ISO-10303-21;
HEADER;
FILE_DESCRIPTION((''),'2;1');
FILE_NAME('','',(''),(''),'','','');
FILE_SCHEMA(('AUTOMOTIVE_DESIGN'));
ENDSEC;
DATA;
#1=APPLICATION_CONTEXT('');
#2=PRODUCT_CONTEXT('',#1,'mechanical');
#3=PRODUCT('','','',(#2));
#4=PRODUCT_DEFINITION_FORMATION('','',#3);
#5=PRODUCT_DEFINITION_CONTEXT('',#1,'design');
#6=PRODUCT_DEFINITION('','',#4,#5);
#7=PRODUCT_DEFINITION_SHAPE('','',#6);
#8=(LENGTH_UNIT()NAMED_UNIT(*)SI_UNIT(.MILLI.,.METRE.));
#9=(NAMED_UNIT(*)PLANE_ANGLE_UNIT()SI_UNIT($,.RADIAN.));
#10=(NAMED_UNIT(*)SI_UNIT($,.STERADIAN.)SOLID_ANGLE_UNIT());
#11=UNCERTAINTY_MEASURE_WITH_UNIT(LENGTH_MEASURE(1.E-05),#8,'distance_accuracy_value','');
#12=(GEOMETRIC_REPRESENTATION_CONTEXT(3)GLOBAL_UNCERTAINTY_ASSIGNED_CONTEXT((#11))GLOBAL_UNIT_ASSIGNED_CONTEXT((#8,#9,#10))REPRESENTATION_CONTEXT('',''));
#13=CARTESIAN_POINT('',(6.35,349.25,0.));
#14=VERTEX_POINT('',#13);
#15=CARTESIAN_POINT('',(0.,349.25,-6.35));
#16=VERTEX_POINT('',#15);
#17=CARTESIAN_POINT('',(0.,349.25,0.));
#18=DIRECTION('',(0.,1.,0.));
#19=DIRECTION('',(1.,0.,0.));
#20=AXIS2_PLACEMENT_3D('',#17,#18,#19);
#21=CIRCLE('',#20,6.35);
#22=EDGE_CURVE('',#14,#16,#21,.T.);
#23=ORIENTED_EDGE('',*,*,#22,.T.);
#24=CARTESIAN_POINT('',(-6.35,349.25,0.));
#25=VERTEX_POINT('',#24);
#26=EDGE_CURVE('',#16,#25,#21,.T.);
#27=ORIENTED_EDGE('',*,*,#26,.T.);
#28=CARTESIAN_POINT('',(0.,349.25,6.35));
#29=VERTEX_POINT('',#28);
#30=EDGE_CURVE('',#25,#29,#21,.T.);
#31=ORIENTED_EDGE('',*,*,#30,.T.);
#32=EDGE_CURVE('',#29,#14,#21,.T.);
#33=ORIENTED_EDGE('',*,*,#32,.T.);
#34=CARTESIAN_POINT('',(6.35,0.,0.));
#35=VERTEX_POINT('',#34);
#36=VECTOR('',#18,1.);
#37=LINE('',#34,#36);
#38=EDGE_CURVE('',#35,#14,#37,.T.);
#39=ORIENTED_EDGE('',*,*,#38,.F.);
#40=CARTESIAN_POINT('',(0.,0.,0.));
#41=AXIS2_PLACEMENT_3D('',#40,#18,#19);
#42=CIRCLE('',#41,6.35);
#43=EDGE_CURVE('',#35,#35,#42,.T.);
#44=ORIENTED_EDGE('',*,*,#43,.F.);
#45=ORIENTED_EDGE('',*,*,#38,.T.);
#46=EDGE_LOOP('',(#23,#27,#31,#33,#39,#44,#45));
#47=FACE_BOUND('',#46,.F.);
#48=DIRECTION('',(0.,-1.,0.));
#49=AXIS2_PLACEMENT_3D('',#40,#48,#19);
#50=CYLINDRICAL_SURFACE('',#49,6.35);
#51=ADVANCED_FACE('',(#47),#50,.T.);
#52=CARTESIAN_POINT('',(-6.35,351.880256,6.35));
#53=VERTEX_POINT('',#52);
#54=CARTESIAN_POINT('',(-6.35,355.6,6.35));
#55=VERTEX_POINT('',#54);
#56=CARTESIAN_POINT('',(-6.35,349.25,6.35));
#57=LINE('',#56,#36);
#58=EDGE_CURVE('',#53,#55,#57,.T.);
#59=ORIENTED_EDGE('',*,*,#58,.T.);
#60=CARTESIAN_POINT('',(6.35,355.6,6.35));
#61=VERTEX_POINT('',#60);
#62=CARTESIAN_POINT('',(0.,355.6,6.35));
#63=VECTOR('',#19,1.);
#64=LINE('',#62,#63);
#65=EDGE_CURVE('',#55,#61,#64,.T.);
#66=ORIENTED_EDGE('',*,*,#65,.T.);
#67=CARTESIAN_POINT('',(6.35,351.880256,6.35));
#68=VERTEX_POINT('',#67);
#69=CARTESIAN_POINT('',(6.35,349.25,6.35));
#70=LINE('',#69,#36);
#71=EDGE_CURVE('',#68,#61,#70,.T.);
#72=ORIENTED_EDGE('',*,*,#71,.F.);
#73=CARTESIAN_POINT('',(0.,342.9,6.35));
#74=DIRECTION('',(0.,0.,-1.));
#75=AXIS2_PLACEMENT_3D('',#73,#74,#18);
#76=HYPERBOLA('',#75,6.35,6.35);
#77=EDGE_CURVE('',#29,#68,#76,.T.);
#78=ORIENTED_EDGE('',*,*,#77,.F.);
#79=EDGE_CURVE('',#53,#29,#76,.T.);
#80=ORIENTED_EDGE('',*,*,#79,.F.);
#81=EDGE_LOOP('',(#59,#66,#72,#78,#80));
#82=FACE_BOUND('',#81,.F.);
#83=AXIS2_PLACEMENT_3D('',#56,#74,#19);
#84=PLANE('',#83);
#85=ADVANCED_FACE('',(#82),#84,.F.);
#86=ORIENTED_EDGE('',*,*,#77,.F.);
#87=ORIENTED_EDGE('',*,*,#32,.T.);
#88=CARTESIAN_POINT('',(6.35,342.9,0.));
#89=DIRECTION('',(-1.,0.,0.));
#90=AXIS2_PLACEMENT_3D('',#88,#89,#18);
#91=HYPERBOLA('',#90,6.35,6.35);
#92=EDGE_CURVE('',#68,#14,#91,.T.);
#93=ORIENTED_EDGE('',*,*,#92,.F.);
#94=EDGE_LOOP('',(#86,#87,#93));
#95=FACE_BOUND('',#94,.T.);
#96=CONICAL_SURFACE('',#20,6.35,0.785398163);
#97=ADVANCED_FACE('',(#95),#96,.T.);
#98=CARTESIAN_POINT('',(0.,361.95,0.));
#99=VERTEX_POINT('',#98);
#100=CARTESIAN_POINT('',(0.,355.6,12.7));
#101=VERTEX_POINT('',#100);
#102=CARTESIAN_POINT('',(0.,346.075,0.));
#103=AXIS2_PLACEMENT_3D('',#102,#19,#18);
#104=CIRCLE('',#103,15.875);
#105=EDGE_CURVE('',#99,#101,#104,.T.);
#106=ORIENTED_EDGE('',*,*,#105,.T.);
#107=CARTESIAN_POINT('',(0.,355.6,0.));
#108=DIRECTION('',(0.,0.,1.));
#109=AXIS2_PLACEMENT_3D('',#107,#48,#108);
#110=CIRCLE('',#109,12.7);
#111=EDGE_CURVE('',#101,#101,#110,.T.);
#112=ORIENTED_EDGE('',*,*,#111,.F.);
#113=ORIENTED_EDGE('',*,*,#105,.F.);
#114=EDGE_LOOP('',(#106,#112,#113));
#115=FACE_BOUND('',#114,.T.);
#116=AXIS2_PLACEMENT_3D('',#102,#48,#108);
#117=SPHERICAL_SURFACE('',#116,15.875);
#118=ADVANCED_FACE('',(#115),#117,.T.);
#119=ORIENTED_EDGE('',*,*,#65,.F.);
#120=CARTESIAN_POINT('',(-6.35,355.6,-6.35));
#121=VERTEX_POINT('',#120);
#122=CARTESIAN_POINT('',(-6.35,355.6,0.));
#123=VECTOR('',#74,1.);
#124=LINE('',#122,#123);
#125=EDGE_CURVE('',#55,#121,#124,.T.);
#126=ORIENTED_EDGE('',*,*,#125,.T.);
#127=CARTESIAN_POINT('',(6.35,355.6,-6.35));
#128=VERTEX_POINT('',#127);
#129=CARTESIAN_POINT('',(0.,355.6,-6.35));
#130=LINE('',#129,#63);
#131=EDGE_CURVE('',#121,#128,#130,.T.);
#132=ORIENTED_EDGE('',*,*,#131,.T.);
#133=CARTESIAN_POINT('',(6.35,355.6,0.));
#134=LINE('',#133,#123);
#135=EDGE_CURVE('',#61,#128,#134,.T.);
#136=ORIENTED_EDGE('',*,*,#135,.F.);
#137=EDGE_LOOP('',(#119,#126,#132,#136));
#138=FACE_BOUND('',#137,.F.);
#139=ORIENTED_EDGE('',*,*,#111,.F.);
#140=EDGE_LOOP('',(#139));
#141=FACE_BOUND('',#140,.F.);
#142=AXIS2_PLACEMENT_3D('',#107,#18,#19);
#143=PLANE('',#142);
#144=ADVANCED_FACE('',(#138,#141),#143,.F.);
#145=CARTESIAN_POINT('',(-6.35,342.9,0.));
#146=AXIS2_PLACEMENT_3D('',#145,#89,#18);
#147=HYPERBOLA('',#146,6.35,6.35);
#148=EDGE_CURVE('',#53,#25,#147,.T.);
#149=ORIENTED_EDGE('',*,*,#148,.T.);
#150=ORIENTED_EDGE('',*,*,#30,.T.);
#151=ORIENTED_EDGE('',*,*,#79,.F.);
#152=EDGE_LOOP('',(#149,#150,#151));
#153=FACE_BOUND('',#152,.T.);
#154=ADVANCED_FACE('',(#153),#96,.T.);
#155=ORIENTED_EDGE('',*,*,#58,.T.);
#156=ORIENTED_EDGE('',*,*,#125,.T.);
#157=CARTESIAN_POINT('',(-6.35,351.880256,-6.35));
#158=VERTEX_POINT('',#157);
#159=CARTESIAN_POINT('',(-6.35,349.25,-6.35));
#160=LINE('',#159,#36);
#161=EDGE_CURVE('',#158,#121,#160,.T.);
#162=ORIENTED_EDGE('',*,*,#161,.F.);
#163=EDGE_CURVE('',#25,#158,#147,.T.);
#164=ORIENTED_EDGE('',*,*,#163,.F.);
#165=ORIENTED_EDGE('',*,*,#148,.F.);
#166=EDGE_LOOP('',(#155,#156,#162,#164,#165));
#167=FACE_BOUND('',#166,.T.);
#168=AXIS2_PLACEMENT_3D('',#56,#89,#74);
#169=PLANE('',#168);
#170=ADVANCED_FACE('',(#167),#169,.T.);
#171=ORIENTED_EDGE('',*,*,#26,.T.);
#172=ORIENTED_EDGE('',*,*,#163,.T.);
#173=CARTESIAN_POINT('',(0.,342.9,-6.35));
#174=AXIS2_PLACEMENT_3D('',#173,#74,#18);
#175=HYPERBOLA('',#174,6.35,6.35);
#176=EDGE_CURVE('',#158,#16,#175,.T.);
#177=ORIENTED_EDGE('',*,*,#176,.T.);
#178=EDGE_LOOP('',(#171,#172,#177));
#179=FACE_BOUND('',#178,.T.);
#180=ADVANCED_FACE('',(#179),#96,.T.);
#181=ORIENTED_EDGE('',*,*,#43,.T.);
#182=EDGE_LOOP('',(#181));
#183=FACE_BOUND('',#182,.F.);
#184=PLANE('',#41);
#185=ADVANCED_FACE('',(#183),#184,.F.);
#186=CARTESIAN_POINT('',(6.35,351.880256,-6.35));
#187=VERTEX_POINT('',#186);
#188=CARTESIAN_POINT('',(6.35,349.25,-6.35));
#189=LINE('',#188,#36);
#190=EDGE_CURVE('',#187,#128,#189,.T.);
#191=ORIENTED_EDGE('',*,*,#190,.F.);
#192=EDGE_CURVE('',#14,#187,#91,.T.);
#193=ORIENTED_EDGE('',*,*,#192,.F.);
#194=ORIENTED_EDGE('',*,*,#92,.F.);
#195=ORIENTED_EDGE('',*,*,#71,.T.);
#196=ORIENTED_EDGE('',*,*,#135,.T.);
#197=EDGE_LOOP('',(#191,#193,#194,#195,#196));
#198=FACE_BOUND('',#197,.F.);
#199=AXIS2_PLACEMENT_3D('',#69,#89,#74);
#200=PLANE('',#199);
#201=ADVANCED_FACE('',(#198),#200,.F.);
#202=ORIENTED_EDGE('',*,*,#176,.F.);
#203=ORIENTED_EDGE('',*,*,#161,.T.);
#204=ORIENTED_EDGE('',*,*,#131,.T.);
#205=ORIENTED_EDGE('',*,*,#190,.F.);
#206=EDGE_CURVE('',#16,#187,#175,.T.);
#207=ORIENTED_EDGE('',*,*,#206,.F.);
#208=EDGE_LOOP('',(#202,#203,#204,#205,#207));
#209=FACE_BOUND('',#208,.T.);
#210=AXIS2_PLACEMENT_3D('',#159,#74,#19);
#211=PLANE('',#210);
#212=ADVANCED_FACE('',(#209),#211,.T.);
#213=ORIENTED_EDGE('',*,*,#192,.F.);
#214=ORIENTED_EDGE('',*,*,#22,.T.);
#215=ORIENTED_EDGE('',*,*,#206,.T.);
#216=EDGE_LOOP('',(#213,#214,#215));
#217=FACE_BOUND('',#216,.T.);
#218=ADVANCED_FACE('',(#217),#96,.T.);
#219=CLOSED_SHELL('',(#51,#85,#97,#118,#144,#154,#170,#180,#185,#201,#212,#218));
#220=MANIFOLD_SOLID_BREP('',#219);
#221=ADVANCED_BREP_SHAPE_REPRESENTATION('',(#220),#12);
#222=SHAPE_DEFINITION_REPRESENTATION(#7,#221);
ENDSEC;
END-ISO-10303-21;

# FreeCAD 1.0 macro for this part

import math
import FreeCAD as App
import Part
import Sketcher
from FreeCAD import Vector
Q = App.Units.Quantity

doc = App.newDocument("Part")
body = doc.addObject("PartDesign::Body", "Body")

# Sketch on XZ plane
sketch1 = body.newObject("Sketcher::SketchObject", "Sketch")
sketch1.AttachmentSupport = (doc.getObject("XZ_Plane"), [""])
sketch1.MapMode = "FlatFace"
sketch1.addGeometry(Part.Circle(Vector(0, 0, 0), Vector(0, 0, 1), 6), False)
sketch1.addConstraint([
    Sketcher.Constraint("Coincident", 0, 3, -1, 1),
    Sketcher.Constraint("Diameter", 0, Q("0.5 in")),
])
pad1 = body.newObject("PartDesign::Pad", "Pad")
pad1.Profile = sketch1
pad1.Length = Q("13.75 in")
pad1.Reversed = True

# Sketch on XZ plane
sketch2 = body.newObject("Sketcher::SketchObject", "Sketch001")
sketch2.AttachmentSupport = (doc.getObject("XZ_Plane"), [""])
sketch2.MapMode = "FlatFace"
sketch2.AttachmentOffset = App.Placement(Vector(0, 0, -13.75 * 25.4), App.Rotation())
sketch2.addGeometry([
    Part.LineSegment(Vector(-6, -6, 0), Vector(-6, 6, 0)),
    Part.LineSegment(Vector(-6, 6, 0), Vector(6, 6, 0)),
    Part.LineSegment(Vector(6, 6, 0), Vector(6, -6, 0)),
    Part.LineSegment(Vector(6, -6, 0), Vector(-6, -6, 0)),
], False)
sketch2.addConstraint([
    Sketcher.Constraint("Coincident", 0, 2, 1, 1),
    Sketcher.Constraint("Coincident", 1, 2, 2, 1),
    Sketcher.Constraint("Coincident", 2, 2, 3, 1),
    Sketcher.Constraint("Coincident", 3, 2, 0, 1),
    Sketcher.Constraint("Vertical", 0),
    Sketcher.Constraint("Horizontal", 1),
    Sketcher.Constraint("Vertical", 2),
    Sketcher.Constraint("Horizontal", 3),
    Sketcher.Constraint("Symmetric", 0, 2, 2, 2, -1, 1),
    Sketcher.Constraint("Equal", 3, 0),
    Sketcher.Constraint("DistanceX", 1, 1, 1, 2, Q("0.5 in")),
])
pad2 = body.newObject("PartDesign::Pad", "Pad001")
pad2.Profile = sketch2
pad2.Length = Q("0.25 in")
pad2.Reversed = True

# Sketch on XZ plane
sketch3 = body.newObject("Sketcher::SketchObject", "Sketch002")
sketch3.AttachmentSupport = (doc.getObject("XZ_Plane"), [""])
sketch3.MapMode = "FlatFace"
sketch3.AttachmentOffset = App.Placement(Vector(0, 0, -14 * 25.4), App.Rotation())
sketch3.addGeometry(Part.Circle(Vector(0, 0, 0), Vector(0, 0, 1), 13), False)
sketch3.addConstraint([
    Sketcher.Constraint("Coincident", 0, 3, -1, 1),
    Sketcher.Constraint("Diameter", 0, Q("1 in")),
])
pad3 = body.newObject("PartDesign::Pad", "Pad002")
pad3.Profile = sketch3
pad3.Length = Q("0.25 in")
pad3.Reversed = True

# Sketch on YZ plane
sketch4 = body.newObject("Sketcher::SketchObject", "Sketch003")
sketch4.AttachmentSupport = (doc.getObject("YZ_Plane"), [""])
sketch4.MapMode = "FlatFace"
sketch4.addGeometry([
    Part.LineSegment(Vector(355.6, 17.2, 0), Vector(355.6, 12.7, 0)),  # 0
    Part.ArcOfCircle(Part.Circle(Vector(346.1, 0, 0), Vector(0, 0, 1), 15.9), math.radians(0), math.radians(53)),  # 1
    Part.LineSegment(Vector(361.9, 0, 0), Vector(364.5, 0, 0)),  # 2
    Part.LineSegment(Vector(364.5, 0, 0), Vector(364.5, 17.2, 0)),  # 3
    Part.LineSegment(Vector(364.5, 17.2, 0), Vector(355.6, 17.2, 0)),  # 4
], False)
sketch4.addConstraint([
    Sketcher.Constraint("Coincident", 0, 2, 1, 2),
    Sketcher.Constraint("Coincident", 1, 1, 2, 1),
    Sketcher.Constraint("Coincident", 2, 2, 3, 1),
    Sketcher.Constraint("Coincident", 3, 2, 4, 1),
    Sketcher.Constraint("Coincident", 4, 2, 0, 1),
    Sketcher.Constraint("Vertical", 0),
    Sketcher.Constraint("Horizontal", 2),
    Sketcher.Constraint("Vertical", 3),
    Sketcher.Constraint("Horizontal", 4),
    Sketcher.Constraint("PointOnObject", 1, 3, -1),
    Sketcher.Constraint("PointOnObject", 1, 1, -1),
    Sketcher.Constraint("DistanceX", -1, 1, 0, 2, Q("14 in")),
    Sketcher.Constraint("Radius", 1, Q("0.625 in")),
    Sketcher.Constraint("DistanceY", -1, 1, 0, 2, Q("0.5 in")),
    Sketcher.Constraint("DistanceY", 0, 2, 0, 1, Q("4.499062 mm")),
    Sketcher.Constraint("DistanceX", 2, 1, 2, 2, Q("2.542507 mm")),
])
groove = body.newObject("PartDesign::Groove", "Groove")
groove.Profile = sketch4
groove.ReferenceAxis = (sketch4, ["H_Axis"])
groove.Angle = 360

# Sketch on XZ plane
sketch5 = body.newObject("Sketcher::SketchObject", "Sketch004")
sketch5.AttachmentSupport = (doc.getObject("XZ_Plane"), [""])
sketch5.MapMode = "FlatFace"
sketch5.AttachmentOffset = App.Placement(Vector(0, 0, -13.75 * 25.4), App.Rotation())
sketch5.addGeometry([
    Part.LineSegment(Vector(-56, 56, 0), Vector(-56, -56, 0)),  # 0
    Part.LineSegment(Vector(-56, -56, 0), Vector(56, -56, 0)),  # 1
    Part.LineSegment(Vector(56, -56, 0), Vector(56, 56, 0)),  # 2
    Part.LineSegment(Vector(56, 56, 0), Vector(-56, 56, 0)),  # 3
    Part.Circle(Vector(0, 0, 0), Vector(0, 0, 1), 6),  # 4
], False)
sketch5.addConstraint([
    Sketcher.Constraint("Coincident", 0, 2, 1, 1),
    Sketcher.Constraint("Coincident", 1, 2, 2, 1),
    Sketcher.Constraint("Coincident", 2, 2, 3, 1),
    Sketcher.Constraint("Coincident", 3, 2, 0, 1),
    Sketcher.Constraint("Vertical", 0),
    Sketcher.Constraint("Horizontal", 1),
    Sketcher.Constraint("Vertical", 2),
    Sketcher.Constraint("Horizontal", 3),
    Sketcher.Constraint("Coincident", 4, 3, -1, 1),
    Sketcher.Constraint("Symmetric", 0, 2, 2, 2, -1, 1),
    Sketcher.Constraint("Equal", 3, 0),
    Sketcher.Constraint("Diameter", 4, Q("0.5 in")),
    Sketcher.Constraint("DistanceX", 1, 1, 1, 2, Q("112.846 mm")),
])
pocket1 = body.newObject("PartDesign::Pocket", "Pocket")
pocket1.Profile = sketch5
pocket1.Length = Q("0.25 in")
pocket1.TaperAngle = 45

doc.recompute()
